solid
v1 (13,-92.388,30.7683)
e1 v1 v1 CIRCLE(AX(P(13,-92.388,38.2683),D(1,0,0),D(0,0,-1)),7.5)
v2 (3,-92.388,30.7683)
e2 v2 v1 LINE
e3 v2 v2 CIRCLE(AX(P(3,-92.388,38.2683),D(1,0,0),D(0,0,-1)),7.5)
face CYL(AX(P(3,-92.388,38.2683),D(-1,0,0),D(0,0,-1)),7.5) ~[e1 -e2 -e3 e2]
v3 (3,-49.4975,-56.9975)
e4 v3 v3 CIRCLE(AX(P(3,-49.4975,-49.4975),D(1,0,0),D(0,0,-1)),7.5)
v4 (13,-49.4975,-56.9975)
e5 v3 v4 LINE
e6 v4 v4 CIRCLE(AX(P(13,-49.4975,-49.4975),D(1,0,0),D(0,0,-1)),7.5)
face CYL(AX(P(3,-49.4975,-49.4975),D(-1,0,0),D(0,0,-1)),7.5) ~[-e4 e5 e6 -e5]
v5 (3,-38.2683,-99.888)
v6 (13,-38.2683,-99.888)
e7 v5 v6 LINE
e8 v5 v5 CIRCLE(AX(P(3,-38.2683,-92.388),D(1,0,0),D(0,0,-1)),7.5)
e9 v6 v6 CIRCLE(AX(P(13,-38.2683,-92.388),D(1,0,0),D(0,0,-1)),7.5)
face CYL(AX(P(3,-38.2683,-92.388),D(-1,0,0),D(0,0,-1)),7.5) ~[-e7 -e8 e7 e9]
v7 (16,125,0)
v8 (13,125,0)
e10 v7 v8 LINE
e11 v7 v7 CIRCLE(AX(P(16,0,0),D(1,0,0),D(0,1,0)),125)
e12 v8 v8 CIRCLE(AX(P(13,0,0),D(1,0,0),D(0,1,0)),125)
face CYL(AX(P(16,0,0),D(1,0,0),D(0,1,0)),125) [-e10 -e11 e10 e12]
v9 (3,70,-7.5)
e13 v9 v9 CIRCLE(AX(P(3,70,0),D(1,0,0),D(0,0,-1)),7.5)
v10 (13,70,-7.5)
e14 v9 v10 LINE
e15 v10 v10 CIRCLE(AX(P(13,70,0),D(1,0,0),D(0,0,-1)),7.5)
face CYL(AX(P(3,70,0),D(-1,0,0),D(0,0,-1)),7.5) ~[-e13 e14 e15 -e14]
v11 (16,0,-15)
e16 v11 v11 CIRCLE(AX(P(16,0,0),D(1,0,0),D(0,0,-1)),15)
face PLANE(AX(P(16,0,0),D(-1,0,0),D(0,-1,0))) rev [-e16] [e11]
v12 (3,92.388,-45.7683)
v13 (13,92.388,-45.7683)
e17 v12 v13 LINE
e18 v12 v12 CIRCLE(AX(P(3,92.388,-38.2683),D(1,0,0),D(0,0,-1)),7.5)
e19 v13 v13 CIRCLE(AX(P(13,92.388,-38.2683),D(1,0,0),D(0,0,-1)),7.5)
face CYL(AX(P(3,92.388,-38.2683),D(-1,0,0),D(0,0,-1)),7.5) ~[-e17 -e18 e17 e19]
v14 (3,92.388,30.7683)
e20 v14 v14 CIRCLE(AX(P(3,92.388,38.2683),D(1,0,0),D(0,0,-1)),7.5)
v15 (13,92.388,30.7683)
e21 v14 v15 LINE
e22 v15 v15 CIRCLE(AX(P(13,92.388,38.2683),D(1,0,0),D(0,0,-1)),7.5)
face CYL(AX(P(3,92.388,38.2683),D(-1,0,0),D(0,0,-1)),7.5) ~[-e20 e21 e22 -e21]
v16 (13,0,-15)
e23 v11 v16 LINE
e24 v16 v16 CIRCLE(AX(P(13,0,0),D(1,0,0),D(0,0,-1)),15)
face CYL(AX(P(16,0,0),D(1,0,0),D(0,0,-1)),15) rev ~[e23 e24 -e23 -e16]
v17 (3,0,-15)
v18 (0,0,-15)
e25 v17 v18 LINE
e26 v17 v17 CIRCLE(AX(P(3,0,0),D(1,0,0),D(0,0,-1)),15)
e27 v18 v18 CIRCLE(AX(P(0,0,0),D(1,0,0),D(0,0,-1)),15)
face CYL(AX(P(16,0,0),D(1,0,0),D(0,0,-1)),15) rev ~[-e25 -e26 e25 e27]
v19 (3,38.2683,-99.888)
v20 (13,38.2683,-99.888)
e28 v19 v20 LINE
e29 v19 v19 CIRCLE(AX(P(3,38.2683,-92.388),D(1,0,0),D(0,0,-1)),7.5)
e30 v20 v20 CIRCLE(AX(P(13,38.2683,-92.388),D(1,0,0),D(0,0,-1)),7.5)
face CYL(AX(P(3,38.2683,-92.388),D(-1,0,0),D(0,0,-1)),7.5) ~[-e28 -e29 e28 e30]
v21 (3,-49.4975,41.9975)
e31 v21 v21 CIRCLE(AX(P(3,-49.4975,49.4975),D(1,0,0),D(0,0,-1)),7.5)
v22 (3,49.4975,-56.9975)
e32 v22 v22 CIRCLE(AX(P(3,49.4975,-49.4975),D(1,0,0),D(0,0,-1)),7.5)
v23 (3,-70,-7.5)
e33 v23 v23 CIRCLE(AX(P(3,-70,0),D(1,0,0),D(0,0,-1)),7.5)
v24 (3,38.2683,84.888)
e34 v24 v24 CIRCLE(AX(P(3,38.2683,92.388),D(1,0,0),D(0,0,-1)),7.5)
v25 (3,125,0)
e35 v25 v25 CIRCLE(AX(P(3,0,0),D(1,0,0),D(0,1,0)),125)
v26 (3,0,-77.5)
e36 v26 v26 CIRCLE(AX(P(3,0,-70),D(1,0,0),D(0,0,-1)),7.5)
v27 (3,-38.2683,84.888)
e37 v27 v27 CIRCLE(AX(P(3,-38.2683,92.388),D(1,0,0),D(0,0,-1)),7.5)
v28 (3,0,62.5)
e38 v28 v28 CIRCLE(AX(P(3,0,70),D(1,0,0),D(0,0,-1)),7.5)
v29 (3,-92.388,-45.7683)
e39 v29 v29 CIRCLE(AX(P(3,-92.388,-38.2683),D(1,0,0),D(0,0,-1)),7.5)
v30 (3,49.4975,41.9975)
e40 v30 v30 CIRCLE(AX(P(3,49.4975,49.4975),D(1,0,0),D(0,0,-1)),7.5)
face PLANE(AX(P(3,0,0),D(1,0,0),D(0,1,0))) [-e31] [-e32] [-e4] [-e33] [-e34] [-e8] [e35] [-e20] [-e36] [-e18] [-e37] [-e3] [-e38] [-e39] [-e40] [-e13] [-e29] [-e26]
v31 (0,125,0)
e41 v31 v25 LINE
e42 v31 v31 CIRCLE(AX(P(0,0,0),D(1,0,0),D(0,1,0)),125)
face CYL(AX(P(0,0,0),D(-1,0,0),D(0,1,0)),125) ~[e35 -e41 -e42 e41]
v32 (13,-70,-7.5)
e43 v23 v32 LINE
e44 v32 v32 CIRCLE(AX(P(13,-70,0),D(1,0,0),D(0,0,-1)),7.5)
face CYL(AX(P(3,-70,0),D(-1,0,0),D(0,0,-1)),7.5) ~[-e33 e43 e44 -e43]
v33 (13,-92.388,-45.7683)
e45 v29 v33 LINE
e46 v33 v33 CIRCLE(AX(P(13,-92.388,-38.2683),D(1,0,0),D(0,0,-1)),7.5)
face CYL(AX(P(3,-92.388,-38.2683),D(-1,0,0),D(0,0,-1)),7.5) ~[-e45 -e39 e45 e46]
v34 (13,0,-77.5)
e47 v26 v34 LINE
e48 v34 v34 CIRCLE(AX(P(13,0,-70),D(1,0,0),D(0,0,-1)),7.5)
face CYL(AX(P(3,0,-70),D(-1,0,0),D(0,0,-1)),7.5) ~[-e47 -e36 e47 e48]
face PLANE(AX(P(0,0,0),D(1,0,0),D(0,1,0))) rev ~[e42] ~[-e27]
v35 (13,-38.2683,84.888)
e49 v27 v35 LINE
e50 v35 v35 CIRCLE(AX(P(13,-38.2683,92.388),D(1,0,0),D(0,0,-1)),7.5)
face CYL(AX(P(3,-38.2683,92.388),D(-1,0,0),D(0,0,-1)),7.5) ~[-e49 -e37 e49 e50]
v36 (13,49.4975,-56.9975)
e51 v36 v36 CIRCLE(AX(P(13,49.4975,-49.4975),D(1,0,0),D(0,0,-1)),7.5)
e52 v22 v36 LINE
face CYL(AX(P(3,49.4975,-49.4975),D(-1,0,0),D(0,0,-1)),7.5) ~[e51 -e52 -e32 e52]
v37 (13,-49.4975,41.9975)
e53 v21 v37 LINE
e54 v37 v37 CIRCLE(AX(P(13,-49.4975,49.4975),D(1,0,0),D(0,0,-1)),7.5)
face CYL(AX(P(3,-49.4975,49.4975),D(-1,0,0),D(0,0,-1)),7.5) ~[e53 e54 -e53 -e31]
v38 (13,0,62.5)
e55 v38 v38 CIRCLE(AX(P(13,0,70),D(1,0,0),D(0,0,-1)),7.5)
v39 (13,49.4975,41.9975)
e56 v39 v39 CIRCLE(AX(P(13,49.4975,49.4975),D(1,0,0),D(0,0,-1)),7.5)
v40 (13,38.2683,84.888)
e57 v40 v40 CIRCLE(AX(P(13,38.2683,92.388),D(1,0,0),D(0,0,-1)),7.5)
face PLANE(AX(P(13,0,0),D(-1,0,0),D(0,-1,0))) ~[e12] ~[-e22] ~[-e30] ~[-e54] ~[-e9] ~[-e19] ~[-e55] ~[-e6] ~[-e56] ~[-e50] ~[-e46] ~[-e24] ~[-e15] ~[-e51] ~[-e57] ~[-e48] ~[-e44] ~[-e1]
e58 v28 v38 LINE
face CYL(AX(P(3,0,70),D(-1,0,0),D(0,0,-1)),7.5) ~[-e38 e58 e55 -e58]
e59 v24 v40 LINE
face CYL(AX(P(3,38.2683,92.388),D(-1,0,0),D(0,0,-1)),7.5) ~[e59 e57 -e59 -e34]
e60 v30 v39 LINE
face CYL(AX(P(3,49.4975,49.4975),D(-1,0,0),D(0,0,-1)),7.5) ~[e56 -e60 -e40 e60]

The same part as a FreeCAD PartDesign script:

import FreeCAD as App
import Part
import Sketcher
Q = App.Units.Quantity

doc = App.newDocument("Part")
params = doc.addObject("Spreadsheet::Sheet", "Params")
for row, (alias, value) in enumerate([
    ("sketch1_diameter", "250 mm"),
    ("pad1_length", "3 mm"),
    ("sketch2_diameter", "15 mm"),
    ("pad2_length", "10 mm"),
    ("sketch3_diameter", "30 mm"),
], start=1):
    params.set(f"A{row}", alias)
    params.set(f"B{row}", "=" + value)
    params.setAlias(f"B{row}", alias)

body = doc.addObject("PartDesign::Body", "Body")

# Sketch on YZ plane
sketch1 = body.newObject("Sketcher::SketchObject", "Sketch")
sketch1.AttachmentSupport = (doc.getObject("YZ_Plane"), [""])
sketch1.MapMode = "FlatFace"
sketch1.addGeometry(Part.Circle(App.Vector(0, 0, 0), App.Vector(0, 0, 1), 125), False)
sketch1.addConstraint([
    Sketcher.Constraint("Coincident", 0, 3, -1, 1),
    Sketcher.Constraint("Diameter", 0, Q("250 mm")),
])
sketch1.setExpression("Constraints[1]", "Params.sketch1_diameter")
pad1 = body.newObject("PartDesign::Pad", "Pad")
pad1.Profile = sketch1
pad1.setExpression("Length", "Params.pad1_length")

# Sketch on YZ plane
sketch2 = body.newObject("Sketcher::SketchObject", "Sketch001")
sketch2.AttachmentSupport = (doc.getObject("YZ_Plane"), [""])
sketch2.MapMode = "FlatFace"
sketch2.AttachmentOffset = App.Placement(App.Vector(0, 0, 3), App.Rotation())
sketch2.addGeometry([
    Part.Circle(App.Vector(70, 0, 0), App.Vector(0, 0, 1), 8),  # 0
    Part.Circle(App.Vector(49, 49, 0), App.Vector(0, 0, 1), 8),  # 1
    Part.Circle(App.Vector(0, 70, 0), App.Vector(0, 0, 1), 8),  # 2
    Part.Circle(App.Vector(-49, 49, 0), App.Vector(0, 0, 1), 8),  # 3
    Part.Circle(App.Vector(-70, 0, 0), App.Vector(0, 0, 1), 8),  # 4
    Part.Circle(App.Vector(-49, -49, 0), App.Vector(0, 0, 1), 8),  # 5
    Part.Circle(App.Vector(0, -70, 0), App.Vector(0, 0, 1), 8),  # 6
    Part.Circle(App.Vector(49, -49, 0), App.Vector(0, 0, 1), 8),  # 7
    Part.Circle(App.Vector(38, -92, 0), App.Vector(0, 0, 1), 8),  # 8
    Part.Circle(App.Vector(92, -38, 0), App.Vector(0, 0, 1), 8),  # 9
    Part.Circle(App.Vector(92, 38, 0), App.Vector(0, 0, 1), 8),  # 10
    Part.Circle(App.Vector(38, 92, 0), App.Vector(0, 0, 1), 8),  # 11
    Part.Circle(App.Vector(-38, 92, 0), App.Vector(0, 0, 1), 8),  # 12
    Part.Circle(App.Vector(-92, 38, 0), App.Vector(0, 0, 1), 8),  # 13
    Part.Circle(App.Vector(-92, -38, 0), App.Vector(0, 0, 1), 8),  # 14
    Part.Circle(App.Vector(-38, -92, 0), App.Vector(0, 0, 1), 8),  # 15
], False)
sketch2.addConstraint([
    Sketcher.Constraint("Equal", 0, 1),
    Sketcher.Constraint("Equal", 1, 2),
    Sketcher.Constraint("Equal", 2, 3),
    Sketcher.Constraint("Equal", 3, 4),
    Sketcher.Constraint("Equal", 4, 5),
    Sketcher.Constraint("Equal", 5, 6),
    Sketcher.Constraint("Equal", 6, 7),
    Sketcher.Constraint("Equal", 7, 8),
    Sketcher.Constraint("Equal", 8, 9),
    Sketcher.Constraint("Equal", 9, 10),
    Sketcher.Constraint("Equal", 10, 11),
    Sketcher.Constraint("Equal", 11, 12),
    Sketcher.Constraint("Equal", 12, 13),
    Sketcher.Constraint("Equal", 13, 14),
    Sketcher.Constraint("Equal", 14, 15),
    Sketcher.Constraint("Symmetric", 0, 3, 4, 3, -1, 1),
    Sketcher.Constraint("Symmetric", 1, 3, 5, 3, -1, 1),
    Sketcher.Constraint("Symmetric", 2, 3, 6, 3, -1, 1),
    Sketcher.Constraint("Symmetric", 3, 3, 7, 3, -1, 1),
    Sketcher.Constraint("Symmetric", 8, 3, 12, 3, -1, 1),
    Sketcher.Constraint("Symmetric", 9, 3, 13, 3, -1, 1),
    Sketcher.Constraint("Symmetric", 10, 3, 14, 3, -1, 1),
    Sketcher.Constraint("Symmetric", 11, 3, 15, 3, -1, 1),
    Sketcher.Constraint("Symmetric", 1, 3, 3, 3, -2),
    Sketcher.Constraint("Symmetric", 11, 3, 12, 3, -2),
    Sketcher.Constraint("Symmetric", 10, 3, 13, 3, -2),
    Sketcher.Constraint("PointOnObject", 0, 3, -1),
    Sketcher.Constraint("PointOnObject", 2, 3, -2),
    Sketcher.Constraint("Diameter", 0, Q("15 mm")),
    Sketcher.Constraint("DistanceX", -1, 1, 0, 3, Q("70 mm")),
    Sketcher.Constraint("DistanceY", -1, 1, 2, 3, Q("70 mm")),
    Sketcher.Constraint("DistanceY", 8, 3, -1, 1, Q("92.388 mm")),
    Sketcher.Constraint("DistanceX", -1, 1, 9, 3, Q("92.388 mm")),
    Sketcher.Constraint("DistanceX", 3, 3, 1, 3, Q("98.995 mm")),
    Sketcher.Constraint("DistanceY", 5, 3, 3, 3, Q("98.995 mm")),
    Sketcher.Constraint("DistanceX", -1, 1, 8, 3, Q("38.2683 mm")),
    Sketcher.Constraint("DistanceY", 9, 3, -1, 1, Q("38.2683 mm")),
])
sketch2.setExpression("Constraints[28]", "Params.sketch2_diameter")
pad2 = body.newObject("PartDesign::Pad", "Pad001")
pad2.Profile = sketch2
pad2.setExpression("Length", "Params.pad2_length")
doc.recompute()

datumplane = body.newObject("PartDesign::Plane", "DatumPlane")
datumplane.AttachmentSupport = (doc.getObject("YZ_Plane"), [""])
datumplane.MapMode = "FlatFace"
datumplane.AttachmentOffset = App.Placement(App.Vector(0, 0, 8), App.Rotation())
mirrored = body.newObject("PartDesign::Mirrored", "Mirrored")
mirrored.Originals = [pad1]
mirrored.MirrorPlane = (datumplane, [""])
body.Tip = mirrored

# Sketch on YZ plane
sketch3 = body.newObject("Sketcher::SketchObject", "Sketch002")
sketch3.AttachmentSupport = (doc.getObject("YZ_Plane"), [""])
sketch3.MapMode = "FlatFace"
sketch3.AttachmentOffset = App.Placement(App.Vector(0, 0, 16), App.Rotation())
sketch3.addGeometry(Part.Circle(App.Vector(0, 0, 0), App.Vector(0, 0, 1), 15), False)
sketch3.addConstraint([
    Sketcher.Constraint("Coincident", 0, 3, -1, 1),
    Sketcher.Constraint("Diameter", 0, Q("30 mm")),
])
sketch3.setExpression("Constraints[1]", "Params.sketch3_diameter")
pocket1 = body.newObject("PartDesign::Pocket", "Pocket")
pocket1.Profile = sketch3
pocket1.Type = "ThroughAll"

doc.recompute()
